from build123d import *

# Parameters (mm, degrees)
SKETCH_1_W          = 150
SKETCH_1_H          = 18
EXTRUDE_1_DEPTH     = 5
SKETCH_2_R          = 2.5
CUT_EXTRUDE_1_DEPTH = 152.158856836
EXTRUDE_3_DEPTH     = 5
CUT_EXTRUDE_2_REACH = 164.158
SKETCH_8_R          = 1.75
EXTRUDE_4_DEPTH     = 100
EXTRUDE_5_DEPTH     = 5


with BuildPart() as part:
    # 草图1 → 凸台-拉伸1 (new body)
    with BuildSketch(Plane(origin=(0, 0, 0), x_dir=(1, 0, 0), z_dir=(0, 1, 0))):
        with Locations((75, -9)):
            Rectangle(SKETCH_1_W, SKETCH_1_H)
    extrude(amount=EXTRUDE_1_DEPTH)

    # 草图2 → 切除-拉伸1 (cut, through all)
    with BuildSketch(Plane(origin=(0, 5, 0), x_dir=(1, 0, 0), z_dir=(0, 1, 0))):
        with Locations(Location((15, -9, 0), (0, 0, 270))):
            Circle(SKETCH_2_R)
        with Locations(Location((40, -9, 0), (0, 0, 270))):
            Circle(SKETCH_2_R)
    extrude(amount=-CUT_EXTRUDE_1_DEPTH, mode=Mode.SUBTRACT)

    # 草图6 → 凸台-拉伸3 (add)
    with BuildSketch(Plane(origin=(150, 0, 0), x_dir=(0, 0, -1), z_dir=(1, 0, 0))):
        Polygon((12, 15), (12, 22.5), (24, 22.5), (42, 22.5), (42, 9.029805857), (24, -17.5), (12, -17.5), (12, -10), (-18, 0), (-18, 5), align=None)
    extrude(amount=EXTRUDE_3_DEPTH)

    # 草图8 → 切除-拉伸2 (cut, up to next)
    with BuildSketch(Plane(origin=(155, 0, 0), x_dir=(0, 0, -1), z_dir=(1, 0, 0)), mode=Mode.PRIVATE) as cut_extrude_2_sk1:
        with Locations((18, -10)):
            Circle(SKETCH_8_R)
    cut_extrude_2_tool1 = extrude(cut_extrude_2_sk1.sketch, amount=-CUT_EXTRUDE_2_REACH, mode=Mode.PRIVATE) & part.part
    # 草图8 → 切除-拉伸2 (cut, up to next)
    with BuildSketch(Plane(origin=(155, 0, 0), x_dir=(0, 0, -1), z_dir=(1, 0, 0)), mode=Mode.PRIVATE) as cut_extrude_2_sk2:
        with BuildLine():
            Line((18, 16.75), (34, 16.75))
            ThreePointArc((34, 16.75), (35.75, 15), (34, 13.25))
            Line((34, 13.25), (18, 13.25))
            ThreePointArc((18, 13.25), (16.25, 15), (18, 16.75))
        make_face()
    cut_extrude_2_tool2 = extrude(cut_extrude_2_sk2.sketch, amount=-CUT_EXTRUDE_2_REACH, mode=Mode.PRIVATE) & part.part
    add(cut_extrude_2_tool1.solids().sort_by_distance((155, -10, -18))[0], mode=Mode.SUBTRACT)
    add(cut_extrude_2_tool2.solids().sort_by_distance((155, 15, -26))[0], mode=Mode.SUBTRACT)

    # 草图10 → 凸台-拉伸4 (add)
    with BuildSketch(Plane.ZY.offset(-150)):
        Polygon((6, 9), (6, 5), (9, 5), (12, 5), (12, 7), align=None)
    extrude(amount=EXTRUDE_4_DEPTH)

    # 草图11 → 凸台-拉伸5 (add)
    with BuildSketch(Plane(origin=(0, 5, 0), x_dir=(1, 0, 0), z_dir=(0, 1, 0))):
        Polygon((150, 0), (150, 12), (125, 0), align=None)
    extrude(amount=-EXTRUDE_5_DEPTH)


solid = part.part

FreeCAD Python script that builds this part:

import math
import FreeCAD as App
import Part
import Sketcher

V = App.Vector

doc = App.newDocument("Part")
body = doc.addObject("PartDesign::Body", "Body")

# Sketch on XZ plane
sketch1 = doc.addObject("Sketcher::SketchObject", "Sketch")
body.addObject(sketch1)
sketch1.AttachmentSupport = (doc.XZ_Plane, [""])
sketch1.MapMode = "FlatFace"
sketch1.addGeometry(Part.LineSegment(V(0, 0, 0), V(0, 18, 0)), False)
sketch1.addGeometry(Part.LineSegment(V(0, 18, 0), V(150, 18, 0)), False)
sketch1.addGeometry(Part.LineSegment(V(150, 18, 0), V(150, 0, 0)), False)
sketch1.addGeometry(Part.LineSegment(V(150, 0, 0), V(0, 0, 0)), False)
sketch1.addConstraint(Sketcher.Constraint("Coincident", 0, 2, 1, 1))
sketch1.addConstraint(Sketcher.Constraint("Coincident", 1, 2, 2, 1))
sketch1.addConstraint(Sketcher.Constraint("Coincident", 2, 2, 3, 1))
sketch1.addConstraint(Sketcher.Constraint("Coincident", 3, 2, 0, 1))
sketch1.addConstraint(Sketcher.Constraint("Vertical", 0))
sketch1.addConstraint(Sketcher.Constraint("Horizontal", 1))
sketch1.addConstraint(Sketcher.Constraint("Vertical", 2))
sketch1.addConstraint(Sketcher.Constraint("Horizontal", 3))
sketch1.addConstraint(Sketcher.Constraint("Coincident", 3, 2, -1, 1))
sketch1.addConstraint(Sketcher.Constraint("DistanceX", 1, 1, 1, 2, 150.0))
sketch1.addConstraint(Sketcher.Constraint("DistanceY", 0, 1, 0, 2, 18.0))
pad1 = doc.addObject("PartDesign::Pad", "Pad")
body.addObject(pad1)
pad1.Profile = sketch1
pad1.Length = 5
pad1.Reversed = True

# Sketch on XZ plane
sketch2 = doc.addObject("Sketcher::SketchObject", "Sketch001")
body.addObject(sketch2)
sketch2.AttachmentSupport = (doc.XZ_Plane, [""])
sketch2.MapMode = "FlatFace"
sketch2.AttachmentOffset = App.Placement(V(0, 0, -5), App.Rotation())
sketch2.addGeometry(Part.Circle(V(15, 9, 0), V(0, 0, 1), 2.5), False)
sketch2.addGeometry(Part.Circle(V(40, 9, 0), V(0, 0, 1), 2.5), False)
sketch2.addConstraint(Sketcher.Constraint("Equal", 0, 1))
sketch2.addConstraint(Sketcher.Constraint("Horizontal", 0, 3, 1, 3))
sketch2.addConstraint(Sketcher.Constraint("Diameter", 0, 5.0))
sketch2.addConstraint(Sketcher.Constraint("DistanceX", -1, 1, 0, 3, 15.0))
sketch2.addConstraint(Sketcher.Constraint("DistanceY", -1, 1, 0, 3, 9.0))
sketch2.addConstraint(Sketcher.Constraint("DistanceX", -1, 1, 1, 3, 40.0))
pocket1 = doc.addObject("PartDesign::Pocket", "Pocket")
body.addObject(pocket1)
pocket1.Profile = sketch2
pocket1.Type = "ThroughAll"
pocket1.Reversed = True

# Sketch on YZ plane
sketch3 = doc.addObject("Sketcher::SketchObject", "Sketch002")
body.addObject(sketch3)
sketch3.AttachmentSupport = (doc.YZ_Plane, [""])
sketch3.MapMode = "FlatFace"
sketch3.AttachmentOffset = App.Placement(V(0, 0, 150), App.Rotation())
sketch3.addGeometry(Part.LineSegment(V(22, -12, 0), V(15, -12, 0)), False)
sketch3.addGeometry(Part.LineSegment(V(15, -12, 0), V(5, 18, 0)), False)
sketch3.addGeometry(Part.LineSegment(V(5, 18, 0), V(0, 18, 0)), False)
sketch3.addGeometry(Part.LineSegment(V(0, 18, 0), V(-10, -12, 0)), False)
sketch3.addGeometry(Part.LineSegment(V(-10, -12, 0), V(-18, -12, 0)), False)
sketch3.addGeometry(Part.LineSegment(V(-18, -12, 0), V(-18, -24, 0)), False)
sketch3.addGeometry(Part.LineSegment(V(-18, -24, 0), V(9, -42, 0)), False)
sketch3.addGeometry(Part.LineSegment(V(9, -42, 0), V(22, -42, 0)), False)
sketch3.addGeometry(Part.LineSegment(V(22, -42, 0), V(22, -12, 0)), False)
sketch3.addConstraint(Sketcher.Constraint("Coincident", 0, 2, 1, 1))
sketch3.addConstraint(Sketcher.Constraint("Coincident", 1, 2, 2, 1))
sketch3.addConstraint(Sketcher.Constraint("Coincident", 2, 2, 3, 1))
sketch3.addConstraint(Sketcher.Constraint("Coincident", 3, 2, 4, 1))
sketch3.addConstraint(Sketcher.Constraint("Coincident", 4, 2, 5, 1))
sketch3.addConstraint(Sketcher.Constraint("Coincident", 5, 2, 6, 1))
sketch3.addConstraint(Sketcher.Constraint("Coincident", 6, 2, 7, 1))
sketch3.addConstraint(Sketcher.Constraint("Coincident", 7, 2, 8, 1))
sketch3.addConstraint(Sketcher.Constraint("Coincident", 8, 2, 0, 1))
sketch3.addConstraint(Sketcher.Constraint("Horizontal", 0))
sketch3.addConstraint(Sketcher.Constraint("Horizontal", 2))
sketch3.addConstraint(Sketcher.Constraint("Horizontal", 4))
sketch3.addConstraint(Sketcher.Constraint("Vertical", 5))
sketch3.addConstraint(Sketcher.Constraint("Horizontal", 7))
sketch3.addConstraint(Sketcher.Constraint("Vertical", 8))
sketch3.addConstraint(Sketcher.Constraint("PointOnObject", 2, 2, -2))
sketch3.addConstraint(Sketcher.Constraint("Horizontal", 0, 2, 3, 2))
sketch3.addConstraint(Sketcher.Constraint("Equal", 0, 4))
sketch3.addConstraint(Sketcher.Constraint("Equal", 1, 3))
sketch3.addConstraint(Sketcher.Constraint("DistanceX", 2, 2, 2, 1, 5.0))
sketch3.addConstraint(Sketcher.Constraint("DistanceY", 5, 2, 5, 1, 12.0))
sketch3.addConstraint(Sketcher.Constraint("DistanceY", 8, 1, 8, 2, 30.0))
sketch3.addConstraint(Sketcher.Constraint("DistanceX", 0, 2, 0, 1, 7.5))
sketch3.addConstraint(Sketcher.Constraint("DistanceX", -1, 1, 0, 2, 15.0))
sketch3.addConstraint(Sketcher.Constraint("DistanceY", 0, 2, -1, 1, 12.0))
sketch3.addConstraint(Sketcher.Constraint("DistanceY", -1, 1, 1, 2, 18.0))
sketch3.addConstraint(Sketcher.Constraint("DistanceX", 7, 1, 7, 2, 13.470194))
pad2 = doc.addObject("PartDesign::Pad", "Pad001")
body.addObject(pad2)
pad2.Profile = sketch3
pad2.Length = 5

# Sketch on YZ plane
sketch4 = doc.addObject("Sketcher::SketchObject", "Sketch003")
body.addObject(sketch4)
sketch4.AttachmentSupport = (doc.YZ_Plane, [""])
sketch4.MapMode = "FlatFace"
sketch4.AttachmentOffset = App.Placement(V(0, 0, 155), App.Rotation())
sketch4.addGeometry(Part.Circle(V(-10, -18, 0), V(0, 0, 1), 1.8), False)
sketch4.addConstraint(Sketcher.Constraint("Diameter", 0, 3.5))
sketch4.addConstraint(Sketcher.Constraint("DistanceX", 0, 3, -1, 1, 10.0))
sketch4.addConstraint(Sketcher.Constraint("DistanceY", 0, 3, -1, 1, 18.0))
pocket2 = doc.addObject("PartDesign::Pocket", "Pocket001")
body.addObject(pocket2)
pocket2.Profile = sketch4
pocket2.Type = "UpToFirst"

# Sketch on YZ plane
sketch5 = doc.addObject("Sketcher::SketchObject", "Sketch004")
body.addObject(sketch5)
sketch5.AttachmentSupport = (doc.YZ_Plane, [""])
sketch5.MapMode = "FlatFace"
sketch5.AttachmentOffset = App.Placement(V(0, 0, 155), App.Rotation())
sketch5.addGeometry(Part.LineSegment(V(16.8, -34, 0), V(16.8, -18, 0)), False)
sketch5.addGeometry(Part.ArcOfCircle(Part.Circle(V(15, -18, 0), V(0, 0, 1), 1.8), math.radians(0), math.radians(180)), False)
sketch5.addGeometry(Part.LineSegment(V(13.2, -18, 0), V(13.2, -34, 0)), False)
sketch5.addGeometry(Part.ArcOfCircle(Part.Circle(V(15, -34, 0), V(0, 0, 1), 1.8), math.radians(180), math.radians(360)), False)
sketch5.addConstraint(Sketcher.Constraint("Tangent", 0, 2, 1, 1))
sketch5.addConstraint(Sketcher.Constraint("Tangent", 1, 2, 2, 1))
sketch5.addConstraint(Sketcher.Constraint("Tangent", 2, 2, 3, 1))
sketch5.addConstraint(Sketcher.Constraint("Tangent", 3, 2, 0, 1))
sketch5.addConstraint(Sketcher.Constraint("Vertical", 0))
sketch5.addConstraint(Sketcher.Constraint("Vertical", 2))
sketch5.addConstraint(Sketcher.Constraint("DistanceY", 0, 1, 0, 2, 16.0))
sketch5.addConstraint(Sketcher.Constraint("Radius", 1, 1.75))
sketch5.addConstraint(Sketcher.Constraint("DistanceX", -1, 1, 1, 3, 15.0))
sketch5.addConstraint(Sketcher.Constraint("DistanceY", 1, 3, -1, 1, 18.0))
pocket3 = doc.addObject("PartDesign::Pocket", "Pocket002")
body.addObject(pocket3)
pocket3.Profile = sketch5
pocket3.Type = "UpToFirst"

# Sketch on YZ plane
sketch6 = doc.addObject("Sketcher::SketchObject", "Sketch005")
body.addObject(sketch6)
sketch6.AttachmentSupport = (doc.YZ_Plane, [""])
sketch6.MapMode = "FlatFace"
sketch6.AttachmentOffset = App.Placement(V(0, 0, 150), App.Rotation())
sketch6.addGeometry(Part.LineSegment(V(9, 6, 0), V(5, 6, 0)), False)
sketch6.addGeometry(Part.LineSegment(V(5, 6, 0), V(5, 12, 0)), False)
sketch6.addGeometry(Part.LineSegment(V(5, 12, 0), V(7, 12, 0)), False)
sketch6.addGeometry(Part.LineSegment(V(7, 12, 0), V(9, 6, 0)), False)
sketch6.addConstraint(Sketcher.Constraint("Coincident", 0, 2, 1, 1))
sketch6.addConstraint(Sketcher.Constraint("Coincident", 1, 2, 2, 1))
sketch6.addConstraint(Sketcher.Constraint("Coincident", 2, 2, 3, 1))
sketch6.addConstraint(Sketcher.Constraint("Coincident", 3, 2, 0, 1))
sketch6.addConstraint(Sketcher.Constraint("Horizontal", 0))
sketch6.addConstraint(Sketcher.Constraint("Vertical", 1))
sketch6.addConstraint(Sketcher.Constraint("Horizontal", 2))
sketch6.addConstraint(Sketcher.Constraint("DistanceX", 0, 2, 0, 1, 4.0))
sketch6.addConstraint(Sketcher.Constraint("DistanceX", 2, 1, 2, 2, 2.0))
sketch6.addConstraint(Sketcher.Constraint("DistanceY", 1, 1, 1, 2, 6.0))
sketch6.addConstraint(Sketcher.Constraint("DistanceX", -1, 1, 0, 2, 5.0))
sketch6.addConstraint(Sketcher.Constraint("DistanceY", -1, 1, 0, 2, 6.0))
pad3 = doc.addObject("PartDesign::Pad", "Pad002")
body.addObject(pad3)
pad3.Profile = sketch6
pad3.Length = 100
pad3.Reversed = True

# Sketch on XZ plane
sketch7 = doc.addObject("Sketcher::SketchObject", "Sketch006")
body.addObject(sketch7)
sketch7.AttachmentSupport = (doc.XZ_Plane, [""])
sketch7.MapMode = "FlatFace"
sketch7.AttachmentOffset = App.Placement(V(0, 0, -5), App.Rotation())
sketch7.addGeometry(Part.LineSegment(V(150, 0, 0), V(150, -12, 0)), False)
sketch7.addGeometry(Part.LineSegment(V(150, -12, 0), V(125, 0, 0)), False)
sketch7.addGeometry(Part.LineSegment(V(125, 0, 0), V(150, 0, 0)), False)
sketch7.addConstraint(Sketcher.Constraint("Coincident", 0, 2, 1, 1))
sketch7.addConstraint(Sketcher.Constraint("Coincident", 1, 2, 2, 1))
sketch7.addConstraint(Sketcher.Constraint("Coincident", 2, 2, 0, 1))
sketch7.addConstraint(Sketcher.Constraint("Vertical", 0))
sketch7.addConstraint(Sketcher.Constraint("Horizontal", 2))
sketch7.addConstraint(Sketcher.Constraint("PointOnObject", 1, 2, -1))
sketch7.addConstraint(Sketcher.Constraint("DistanceX", 2, 1, 2, 2, 25.0))
sketch7.addConstraint(Sketcher.Constraint("DistanceY", 0, 2, 0, 1, 12.0))
sketch7.addConstraint(Sketcher.Constraint("DistanceX", -1, 1, 0, 2, 150.0))
pad4 = doc.addObject("PartDesign::Pad", "Pad003")
body.addObject(pad4)
pad4.Profile = sketch7
pad4.Length = 5

doc.recompute()
